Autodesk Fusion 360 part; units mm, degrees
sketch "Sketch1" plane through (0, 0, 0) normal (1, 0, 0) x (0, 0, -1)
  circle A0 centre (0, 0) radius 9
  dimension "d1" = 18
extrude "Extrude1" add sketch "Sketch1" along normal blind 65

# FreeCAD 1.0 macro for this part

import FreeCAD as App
import Part
import Sketcher
from FreeCAD import Vector

doc = App.newDocument("Part")
params = doc.addObject("Spreadsheet::Sheet", "Params")
for row, (alias, value) in enumerate([
    ("sketch1_diameter", "18 mm"),
    ("pad1_length", "65 mm"),
], start=1):
    params.set(f"A{row}", alias)
    params.set(f"B{row}", "=" + value)
    params.setAlias(f"B{row}", alias)

body = doc.addObject("PartDesign::Body", "Body")

# Sketch on YZ plane
sketch1 = doc.addObject("Sketcher::SketchObject", "Sketch")
body.addObject(sketch1)
sketch1.AttachmentSupport = (doc.YZ_Plane, [""])
sketch1.MapMode = "FlatFace"
sketch1.addGeometry(Part.Circle(Vector(0, 0, 0), Vector(0, 0, 1), 9), False)
sketch1.addConstraint([
    Sketcher.Constraint("Coincident", 0, 3, -1, 1),
    Sketcher.Constraint("Diameter", 0, 18.0),
])
sketch1.setExpression("Constraints[1]", "Params.sketch1_diameter")
pad1 = doc.addObject("PartDesign::Pad", "Pad")
body.addObject(pad1)
pad1.Profile = sketch1
pad1.setExpression("Length", "Params.pad1_length")

doc.recompute()
